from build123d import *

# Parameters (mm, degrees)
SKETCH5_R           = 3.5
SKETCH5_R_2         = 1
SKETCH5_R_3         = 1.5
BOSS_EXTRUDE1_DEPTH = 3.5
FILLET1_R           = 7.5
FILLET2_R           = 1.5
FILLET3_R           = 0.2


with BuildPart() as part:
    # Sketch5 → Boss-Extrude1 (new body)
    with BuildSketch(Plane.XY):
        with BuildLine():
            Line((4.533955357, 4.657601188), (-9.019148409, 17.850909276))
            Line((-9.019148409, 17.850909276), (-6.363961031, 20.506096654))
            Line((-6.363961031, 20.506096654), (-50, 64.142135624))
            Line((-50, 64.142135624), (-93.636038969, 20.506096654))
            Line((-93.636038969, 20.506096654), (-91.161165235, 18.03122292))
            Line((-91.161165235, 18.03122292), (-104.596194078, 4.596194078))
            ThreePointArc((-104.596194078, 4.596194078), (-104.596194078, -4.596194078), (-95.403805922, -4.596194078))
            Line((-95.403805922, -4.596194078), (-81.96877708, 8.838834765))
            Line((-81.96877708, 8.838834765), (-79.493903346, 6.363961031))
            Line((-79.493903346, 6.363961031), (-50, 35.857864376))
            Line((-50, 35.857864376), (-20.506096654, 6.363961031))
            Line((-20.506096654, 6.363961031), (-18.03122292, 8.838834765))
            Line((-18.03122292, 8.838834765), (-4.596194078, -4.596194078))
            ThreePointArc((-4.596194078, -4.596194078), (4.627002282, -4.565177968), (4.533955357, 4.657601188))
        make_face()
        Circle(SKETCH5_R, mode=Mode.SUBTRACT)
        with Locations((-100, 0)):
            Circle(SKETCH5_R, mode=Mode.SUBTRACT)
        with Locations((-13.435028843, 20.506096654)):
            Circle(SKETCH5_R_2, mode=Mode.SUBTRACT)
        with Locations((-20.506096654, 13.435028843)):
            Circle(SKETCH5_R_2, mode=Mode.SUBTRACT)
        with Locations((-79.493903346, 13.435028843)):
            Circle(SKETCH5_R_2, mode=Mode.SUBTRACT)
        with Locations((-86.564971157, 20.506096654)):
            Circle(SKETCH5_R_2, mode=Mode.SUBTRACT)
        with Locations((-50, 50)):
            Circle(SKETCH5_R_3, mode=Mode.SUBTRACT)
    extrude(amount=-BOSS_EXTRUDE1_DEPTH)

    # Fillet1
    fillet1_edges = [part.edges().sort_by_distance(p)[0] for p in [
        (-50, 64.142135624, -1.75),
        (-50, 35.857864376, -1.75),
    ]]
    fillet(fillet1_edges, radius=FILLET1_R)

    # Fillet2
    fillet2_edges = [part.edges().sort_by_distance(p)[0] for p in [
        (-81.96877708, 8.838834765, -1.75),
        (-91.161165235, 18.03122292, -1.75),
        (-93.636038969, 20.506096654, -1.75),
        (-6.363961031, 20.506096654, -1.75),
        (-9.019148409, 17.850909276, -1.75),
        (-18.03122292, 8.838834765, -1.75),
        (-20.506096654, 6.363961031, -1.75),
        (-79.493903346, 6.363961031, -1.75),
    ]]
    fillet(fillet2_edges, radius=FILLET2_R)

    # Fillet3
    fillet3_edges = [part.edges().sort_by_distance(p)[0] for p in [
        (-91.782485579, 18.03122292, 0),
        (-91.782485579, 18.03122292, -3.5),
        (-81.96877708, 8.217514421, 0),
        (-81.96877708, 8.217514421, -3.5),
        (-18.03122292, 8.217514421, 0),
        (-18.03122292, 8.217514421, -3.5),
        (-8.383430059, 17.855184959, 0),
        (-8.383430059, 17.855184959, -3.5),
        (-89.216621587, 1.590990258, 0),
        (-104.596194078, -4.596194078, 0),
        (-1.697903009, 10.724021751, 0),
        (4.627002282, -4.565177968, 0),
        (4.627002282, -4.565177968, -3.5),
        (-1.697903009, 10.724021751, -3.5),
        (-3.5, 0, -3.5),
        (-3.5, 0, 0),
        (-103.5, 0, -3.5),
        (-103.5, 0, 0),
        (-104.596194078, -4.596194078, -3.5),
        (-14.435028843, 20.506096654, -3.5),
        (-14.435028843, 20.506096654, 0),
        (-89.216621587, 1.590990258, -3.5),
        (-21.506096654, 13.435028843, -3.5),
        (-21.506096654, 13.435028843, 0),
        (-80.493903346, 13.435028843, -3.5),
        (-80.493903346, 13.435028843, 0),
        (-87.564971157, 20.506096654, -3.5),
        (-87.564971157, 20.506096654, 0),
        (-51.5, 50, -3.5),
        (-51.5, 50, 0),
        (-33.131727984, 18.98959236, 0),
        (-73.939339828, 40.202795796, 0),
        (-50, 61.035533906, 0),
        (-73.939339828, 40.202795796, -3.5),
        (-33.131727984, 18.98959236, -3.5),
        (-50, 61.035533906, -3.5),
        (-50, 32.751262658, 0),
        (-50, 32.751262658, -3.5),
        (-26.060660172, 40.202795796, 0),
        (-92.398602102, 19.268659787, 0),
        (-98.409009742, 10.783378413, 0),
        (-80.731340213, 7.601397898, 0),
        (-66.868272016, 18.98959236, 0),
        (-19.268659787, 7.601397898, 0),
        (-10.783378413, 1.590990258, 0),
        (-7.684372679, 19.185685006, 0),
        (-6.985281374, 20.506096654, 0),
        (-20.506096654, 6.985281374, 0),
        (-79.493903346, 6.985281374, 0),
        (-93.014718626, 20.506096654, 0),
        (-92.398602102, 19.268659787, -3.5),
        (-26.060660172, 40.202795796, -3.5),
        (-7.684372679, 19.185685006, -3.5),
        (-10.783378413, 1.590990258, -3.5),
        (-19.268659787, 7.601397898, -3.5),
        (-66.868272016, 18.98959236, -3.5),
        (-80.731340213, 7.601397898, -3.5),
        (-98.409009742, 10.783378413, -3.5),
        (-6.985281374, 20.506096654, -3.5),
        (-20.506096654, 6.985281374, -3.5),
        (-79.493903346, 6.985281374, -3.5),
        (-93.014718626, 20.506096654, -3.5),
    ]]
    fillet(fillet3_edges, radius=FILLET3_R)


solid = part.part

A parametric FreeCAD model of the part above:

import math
import FreeCAD as App
import Part
import Sketcher


def edges_at(feature, points):
    """Names of the edges that pass closest to the given points."""
    edges = feature.Shape.Edges
    near = lambda p: min(range(len(edges)), key=lambda i: edges[i].distToShape(Part.Vertex(*p))[0])
    return sorted({f"Edge{near(p) + 1}" for p in points})

doc = App.newDocument("Part")
body = doc.addObject("PartDesign::Body", "Body")

sketch1 = body.newObject("Sketcher::SketchObject", "Sketch")
sketch1.AttachmentSupport = (doc.getObject("XY_Plane"), [""])
sketch1.MapMode = "FlatFace"
sketch1.addGeometry(Part.LineSegment(App.Vector(4.533955, 4.657601, 0), App.Vector(-9.019148, 17.850909, 0)), False)
sketch1.addGeometry(Part.LineSegment(App.Vector(-9.019148, 17.850909, 0), App.Vector(-6.363961, 20.506097, 0)), False)
sketch1.addGeometry(Part.LineSegment(App.Vector(-6.363961, 20.506097, 0), App.Vector(-50, 64.142136, 0)), False)
sketch1.addGeometry(Part.LineSegment(App.Vector(-50, 64.142136, 0), App.Vector(-93.636039, 20.506097, 0)), False)
sketch1.addGeometry(Part.LineSegment(App.Vector(-93.636039, 20.506097, 0), App.Vector(-91.161165, 18.031223, 0)), False)
sketch1.addGeometry(Part.LineSegment(App.Vector(-91.161165, 18.031223, 0), App.Vector(-104.596194, 4.596194, 0)), False)
sketch1.addGeometry(Part.ArcOfCircle(Part.Circle(App.Vector(-100, 0, 0), App.Vector(0, 0, 1), 6.5), math.radians(135), math.radians(315)), False)
sketch1.addGeometry(Part.LineSegment(App.Vector(-95.403806, -4.596194, 0), App.Vector(-81.968777, 8.838835, 0)), False)
sketch1.addGeometry(Part.LineSegment(App.Vector(-81.968777, 8.838835, 0), App.Vector(-79.493903, 6.363961, 0)), False)
sketch1.addGeometry(Part.LineSegment(App.Vector(-79.493903, 6.363961, 0), App.Vector(-50, 35.857864, 0)), False)
sketch1.addGeometry(Part.LineSegment(App.Vector(-50, 35.857864, 0), App.Vector(-20.506097, 6.363961, 0)), False)
sketch1.addGeometry(Part.LineSegment(App.Vector(-20.506097, 6.363961, 0), App.Vector(-18.031223, 8.838835, 0)), False)
sketch1.addGeometry(Part.LineSegment(App.Vector(-18.031223, 8.838835, 0), App.Vector(-4.596194, -4.596194, 0)), False)
sketch1.addGeometry(Part.ArcOfCircle(Part.Circle(App.Vector(0, 0, 0), App.Vector(0, 0, 1), 6.5), math.radians(-135), math.radians(45.770703)), False)
sketch1.addGeometry(Part.Circle(App.Vector(-100, 0, 0), App.Vector(0, 0, 1), 3.5), False)
sketch1.addGeometry(Part.Circle(App.Vector(-79.493903, 13.435029, 0), App.Vector(0, 0, 1), 1), False)
sketch1.addGeometry(Part.Circle(App.Vector(-86.564971, 20.506097, 0), App.Vector(0, 0, 1), 1), False)
sketch1.addGeometry(Part.Circle(App.Vector(0, 0, 0), App.Vector(0, 0, 1), 3.5), False)
sketch1.addGeometry(Part.Circle(App.Vector(-20.506097, 13.435029, 0), App.Vector(0, 0, 1), 1), False)
sketch1.addGeometry(Part.Circle(App.Vector(-13.435029, 20.506097, 0), App.Vector(0, 0, 1), 1), False)
sketch1.addGeometry(Part.Circle(App.Vector(-50, 50, 0), App.Vector(0, 0, 1), 1.5), False)
sketch1.addConstraint(Sketcher.Constraint("Coincident", 0, 2, 1, 1))
sketch1.addConstraint(Sketcher.Constraint("Coincident", 1, 2, 2, 1))
sketch1.addConstraint(Sketcher.Constraint("Coincident", 2, 2, 3, 1))
sketch1.addConstraint(Sketcher.Constraint("Coincident", 3, 2, 4, 1))
sketch1.addConstraint(Sketcher.Constraint("Coincident", 4, 2, 5, 1))
sketch1.addConstraint(Sketcher.Constraint("Tangent", 5, 2, 6, 1))
sketch1.addConstraint(Sketcher.Constraint("Tangent", 6, 2, 7, 1))
sketch1.addConstraint(Sketcher.Constraint("Coincident", 7, 2, 8, 1))
sketch1.addConstraint(Sketcher.Constraint("Coincident", 8, 2, 9, 1))
sketch1.addConstraint(Sketcher.Constraint("Coincident", 9, 2, 10, 1))
sketch1.addConstraint(Sketcher.Constraint("Coincident", 10, 2, 11, 1))
sketch1.addConstraint(Sketcher.Constraint("Coincident", 11, 2, 12, 1))
sketch1.addConstraint(Sketcher.Constraint("Tangent", 12, 2, 13, 1))
sketch1.addConstraint(Sketcher.Constraint("Tangent", 13, 2, 0, 1))
sketch1.addConstraint(Sketcher.Constraint("Coincident", 13, 3, -1, 1))
sketch1.addConstraint(Sketcher.Constraint("Coincident", 17, 3, -1, 1))
sketch1.addConstraint(Sketcher.Constraint("Coincident", 14, 3, 6, 3))
sketch1.addConstraint(Sketcher.Constraint("Equal", 6, 13))
sketch1.addConstraint(Sketcher.Constraint("Equal", 15, 16))
sketch1.addConstraint(Sketcher.Constraint("Equal", 14, 17))
sketch1.addConstraint(Sketcher.Constraint("Equal", 16, 18))
sketch1.addConstraint(Sketcher.Constraint("Equal", 18, 19))
sketch1.addConstraint(Sketcher.Constraint("PointOnObject", 6, 3, -1))
sketch1.addConstraint(Sketcher.Constraint("Perpendicular", 1, 2))
sketch1.addConstraint(Sketcher.Constraint("Perpendicular", 2, 3))
sketch1.addConstraint(Sketcher.Constraint("Perpendicular", 3, 4))
sketch1.addConstraint(Sketcher.Constraint("Perpendicular", 4, 5))
sketch1.addConstraint(Sketcher.Constraint("Parallel", 5, 7))
sketch1.addConstraint(Sketcher.Constraint("Perpendicular", 7, 8))
sketch1.addConstraint(Sketcher.Constraint("Perpendicular", 8, 9))
sketch1.addConstraint(Sketcher.Constraint("Perpendicular", 9, 10))
sketch1.addConstraint(Sketcher.Constraint("Perpendicular", 10, 11))
sketch1.addConstraint(Sketcher.Constraint("Perpendicular", 11, 12))
sketch1.addConstraint(Sketcher.Constraint("Horizontal", 15, 3, 18, 3))
sketch1.addConstraint(Sketcher.Constraint("Horizontal", 16, 3, 19, 3))
sketch1.addConstraint(Sketcher.Constraint("Horizontal", 19, 3, 1, 2))
sketch1.addConstraint(Sketcher.Constraint("Horizontal", 1, 2, 3, 2))
sketch1.addConstraint(Sketcher.Constraint("Horizontal", 8, 2, 10, 2))
sketch1.addConstraint(Sketcher.Constraint("Horizontal", 7, 2, 11, 2))
sketch1.addConstraint(Sketcher.Constraint("Horizontal", 6, 2, 12, 2))
sketch1.addConstraint(Sketcher.Constraint("Vertical", 20, 3, 2, 2))
sketch1.addConstraint(Sketcher.Constraint("Vertical", 15, 3, 8, 2))
sketch1.addConstraint(Sketcher.Constraint("Vertical", 2, 2, 9, 2))
sketch1.addConstraint(Sketcher.Constraint("Vertical", 18, 3, 10, 2))
sketch1.addConstraint(Sketcher.Constraint("Equal", 5, 7))
sketch1.addConstraint(Sketcher.Constraint("Equal", 4, 8))
sketch1.addConstraint(Sketcher.Constraint("Diameter", 14, 7.0))
sketch1.addConstraint(Sketcher.Constraint("Diameter", 15, 2.0))
sketch1.addConstraint(Sketcher.Constraint("Diameter", 20, 3.0))
sketch1.addConstraint(Sketcher.Constraint("Radius", 6, 6.5))
sketch1.addConstraint(Sketcher.Constraint("Distance", 5, 19.0))
sketch1.addConstraint(Sketcher.Constraint("DistanceX", 6, 3, -1, 1, 100.0))
sketch1.addConstraint(Sketcher.Constraint("DistanceY", -1, 1, 20, 3, 50.0))
sketch1.addConstraint(Sketcher.Constraint("Distance", 4, 3.5))
sketch1.addConstraint(Sketcher.Constraint("DistanceY", -1, 1, 13, 2, 4.657601))
sketch1.addConstraint(Sketcher.Constraint("DistanceY", -1, 1, 15, 3, 13.435029))
sketch1.addConstraint(Sketcher.Constraint("DistanceX", 16, 3, -1, 1, 86.564971))
sketch1.addConstraint(Sketcher.Constraint("DistanceX", 19, 3, -1, 1, 13.435029))
pad1 = body.newObject("PartDesign::Pad", "Pad")
pad1.Profile = sketch1
pad1.Length = 3.5
pad1.Reversed = True
doc.recompute()

fillet = body.newObject("PartDesign::Fillet", "Fillet")
fillet.Base = (pad1, edges_at(pad1, [(-50, 64.142, -1.75), (-50, 35.858, -1.75)]))
fillet.Radius = 7.5
doc.recompute()

fillet2 = body.newObject("PartDesign::Fillet", "Fillet001")
fillet2.Base = (fillet, edges_at(fillet, [
    (-81.969, 8.839, -1.75),
    (-91.161, 18.031, -1.75),
    (-93.636, 20.506, -1.75),
    (-6.364, 20.506, -1.75),
    (-9.019, 17.851, -1.75),
    (-18.031, 8.839, -1.75),
    (-20.506, 6.364, -1.75),
    (-79.494, 6.364, -1.75),
]))
fillet2.Radius = 1.5
doc.recompute()

fillet3 = body.newObject("PartDesign::Fillet", "Fillet002")
fillet3.Base = (fillet2, edges_at(fillet2, [
    (-91.782, 18.031, 0),
    (-91.782, 18.031, -3.5),
    (-81.969, 8.218, 0),
    (-81.969, 8.218, -3.5),
    (-18.031, 8.218, 0),
    (-18.031, 8.218, -3.5),
    (-8.383, 17.855, 0),
    (-8.383, 17.855, -3.5),
    (-89.217, 1.591, 0),
    (-104.596, -4.596, 0),
    (-1.698, 10.724, 0),
    (4.627, -4.565, 0),
    (4.627, -4.565, -3.5),
    (-1.698, 10.724, -3.5),
    (-3.5, 0, -3.5),
    (-3.5, 0, 0),
    (-103.5, 0, -3.5),
    (-103.5, 0, 0),
    (-104.596, -4.596, -3.5),
    (-14.435, 20.506, -3.5),
    (-14.435, 20.506, 0),
    (-89.217, 1.591, -3.5),
    (-21.506, 13.435, -3.5),
    (-21.506, 13.435, 0),
    (-80.494, 13.435, -3.5),
    (-80.494, 13.435, 0),
    (-87.565, 20.506, -3.5),
    (-87.565, 20.506, 0),
    (-51.5, 50, -3.5),
    (-51.5, 50, 0),
    (-33.132, 18.99, 0),
    (-73.939, 40.203, 0),
    (-50, 61.036, 0),
    (-73.939, 40.203, -3.5),
    (-33.132, 18.99, -3.5),
    (-50, 61.036, -3.5),
    (-50, 32.751, 0),
    (-50, 32.751, -3.5),
    (-26.061, 40.203, 0),
    (-92.399, 19.269, 0),
    (-98.409, 10.783, 0),
    (-80.731, 7.601, 0),
    (-66.868, 18.99, 0),
    (-19.269, 7.601, 0),
    (-10.783, 1.591, 0),
    (-7.684, 19.186, 0),
    (-6.985, 20.506, 0),
    (-20.506, 6.985, 0),
    (-79.494, 6.985, 0),
    (-93.015, 20.506, 0),
    (-92.399, 19.269, -3.5),
    (-26.061, 40.203, -3.5),
    (-7.684, 19.186, -3.5),
    (-10.783, 1.591, -3.5),
    (-19.269, 7.601, -3.5),
    (-66.868, 18.99, -3.5),
    (-80.731, 7.601, -3.5),
    (-98.409, 10.783, -3.5),
    (-6.985, 20.506, -3.5),
    (-20.506, 6.985, -3.5),
    (-79.494, 6.985, -3.5),
    (-93.015, 20.506, -3.5),
]))
fillet3.Radius = 0.2

doc.recompute()
